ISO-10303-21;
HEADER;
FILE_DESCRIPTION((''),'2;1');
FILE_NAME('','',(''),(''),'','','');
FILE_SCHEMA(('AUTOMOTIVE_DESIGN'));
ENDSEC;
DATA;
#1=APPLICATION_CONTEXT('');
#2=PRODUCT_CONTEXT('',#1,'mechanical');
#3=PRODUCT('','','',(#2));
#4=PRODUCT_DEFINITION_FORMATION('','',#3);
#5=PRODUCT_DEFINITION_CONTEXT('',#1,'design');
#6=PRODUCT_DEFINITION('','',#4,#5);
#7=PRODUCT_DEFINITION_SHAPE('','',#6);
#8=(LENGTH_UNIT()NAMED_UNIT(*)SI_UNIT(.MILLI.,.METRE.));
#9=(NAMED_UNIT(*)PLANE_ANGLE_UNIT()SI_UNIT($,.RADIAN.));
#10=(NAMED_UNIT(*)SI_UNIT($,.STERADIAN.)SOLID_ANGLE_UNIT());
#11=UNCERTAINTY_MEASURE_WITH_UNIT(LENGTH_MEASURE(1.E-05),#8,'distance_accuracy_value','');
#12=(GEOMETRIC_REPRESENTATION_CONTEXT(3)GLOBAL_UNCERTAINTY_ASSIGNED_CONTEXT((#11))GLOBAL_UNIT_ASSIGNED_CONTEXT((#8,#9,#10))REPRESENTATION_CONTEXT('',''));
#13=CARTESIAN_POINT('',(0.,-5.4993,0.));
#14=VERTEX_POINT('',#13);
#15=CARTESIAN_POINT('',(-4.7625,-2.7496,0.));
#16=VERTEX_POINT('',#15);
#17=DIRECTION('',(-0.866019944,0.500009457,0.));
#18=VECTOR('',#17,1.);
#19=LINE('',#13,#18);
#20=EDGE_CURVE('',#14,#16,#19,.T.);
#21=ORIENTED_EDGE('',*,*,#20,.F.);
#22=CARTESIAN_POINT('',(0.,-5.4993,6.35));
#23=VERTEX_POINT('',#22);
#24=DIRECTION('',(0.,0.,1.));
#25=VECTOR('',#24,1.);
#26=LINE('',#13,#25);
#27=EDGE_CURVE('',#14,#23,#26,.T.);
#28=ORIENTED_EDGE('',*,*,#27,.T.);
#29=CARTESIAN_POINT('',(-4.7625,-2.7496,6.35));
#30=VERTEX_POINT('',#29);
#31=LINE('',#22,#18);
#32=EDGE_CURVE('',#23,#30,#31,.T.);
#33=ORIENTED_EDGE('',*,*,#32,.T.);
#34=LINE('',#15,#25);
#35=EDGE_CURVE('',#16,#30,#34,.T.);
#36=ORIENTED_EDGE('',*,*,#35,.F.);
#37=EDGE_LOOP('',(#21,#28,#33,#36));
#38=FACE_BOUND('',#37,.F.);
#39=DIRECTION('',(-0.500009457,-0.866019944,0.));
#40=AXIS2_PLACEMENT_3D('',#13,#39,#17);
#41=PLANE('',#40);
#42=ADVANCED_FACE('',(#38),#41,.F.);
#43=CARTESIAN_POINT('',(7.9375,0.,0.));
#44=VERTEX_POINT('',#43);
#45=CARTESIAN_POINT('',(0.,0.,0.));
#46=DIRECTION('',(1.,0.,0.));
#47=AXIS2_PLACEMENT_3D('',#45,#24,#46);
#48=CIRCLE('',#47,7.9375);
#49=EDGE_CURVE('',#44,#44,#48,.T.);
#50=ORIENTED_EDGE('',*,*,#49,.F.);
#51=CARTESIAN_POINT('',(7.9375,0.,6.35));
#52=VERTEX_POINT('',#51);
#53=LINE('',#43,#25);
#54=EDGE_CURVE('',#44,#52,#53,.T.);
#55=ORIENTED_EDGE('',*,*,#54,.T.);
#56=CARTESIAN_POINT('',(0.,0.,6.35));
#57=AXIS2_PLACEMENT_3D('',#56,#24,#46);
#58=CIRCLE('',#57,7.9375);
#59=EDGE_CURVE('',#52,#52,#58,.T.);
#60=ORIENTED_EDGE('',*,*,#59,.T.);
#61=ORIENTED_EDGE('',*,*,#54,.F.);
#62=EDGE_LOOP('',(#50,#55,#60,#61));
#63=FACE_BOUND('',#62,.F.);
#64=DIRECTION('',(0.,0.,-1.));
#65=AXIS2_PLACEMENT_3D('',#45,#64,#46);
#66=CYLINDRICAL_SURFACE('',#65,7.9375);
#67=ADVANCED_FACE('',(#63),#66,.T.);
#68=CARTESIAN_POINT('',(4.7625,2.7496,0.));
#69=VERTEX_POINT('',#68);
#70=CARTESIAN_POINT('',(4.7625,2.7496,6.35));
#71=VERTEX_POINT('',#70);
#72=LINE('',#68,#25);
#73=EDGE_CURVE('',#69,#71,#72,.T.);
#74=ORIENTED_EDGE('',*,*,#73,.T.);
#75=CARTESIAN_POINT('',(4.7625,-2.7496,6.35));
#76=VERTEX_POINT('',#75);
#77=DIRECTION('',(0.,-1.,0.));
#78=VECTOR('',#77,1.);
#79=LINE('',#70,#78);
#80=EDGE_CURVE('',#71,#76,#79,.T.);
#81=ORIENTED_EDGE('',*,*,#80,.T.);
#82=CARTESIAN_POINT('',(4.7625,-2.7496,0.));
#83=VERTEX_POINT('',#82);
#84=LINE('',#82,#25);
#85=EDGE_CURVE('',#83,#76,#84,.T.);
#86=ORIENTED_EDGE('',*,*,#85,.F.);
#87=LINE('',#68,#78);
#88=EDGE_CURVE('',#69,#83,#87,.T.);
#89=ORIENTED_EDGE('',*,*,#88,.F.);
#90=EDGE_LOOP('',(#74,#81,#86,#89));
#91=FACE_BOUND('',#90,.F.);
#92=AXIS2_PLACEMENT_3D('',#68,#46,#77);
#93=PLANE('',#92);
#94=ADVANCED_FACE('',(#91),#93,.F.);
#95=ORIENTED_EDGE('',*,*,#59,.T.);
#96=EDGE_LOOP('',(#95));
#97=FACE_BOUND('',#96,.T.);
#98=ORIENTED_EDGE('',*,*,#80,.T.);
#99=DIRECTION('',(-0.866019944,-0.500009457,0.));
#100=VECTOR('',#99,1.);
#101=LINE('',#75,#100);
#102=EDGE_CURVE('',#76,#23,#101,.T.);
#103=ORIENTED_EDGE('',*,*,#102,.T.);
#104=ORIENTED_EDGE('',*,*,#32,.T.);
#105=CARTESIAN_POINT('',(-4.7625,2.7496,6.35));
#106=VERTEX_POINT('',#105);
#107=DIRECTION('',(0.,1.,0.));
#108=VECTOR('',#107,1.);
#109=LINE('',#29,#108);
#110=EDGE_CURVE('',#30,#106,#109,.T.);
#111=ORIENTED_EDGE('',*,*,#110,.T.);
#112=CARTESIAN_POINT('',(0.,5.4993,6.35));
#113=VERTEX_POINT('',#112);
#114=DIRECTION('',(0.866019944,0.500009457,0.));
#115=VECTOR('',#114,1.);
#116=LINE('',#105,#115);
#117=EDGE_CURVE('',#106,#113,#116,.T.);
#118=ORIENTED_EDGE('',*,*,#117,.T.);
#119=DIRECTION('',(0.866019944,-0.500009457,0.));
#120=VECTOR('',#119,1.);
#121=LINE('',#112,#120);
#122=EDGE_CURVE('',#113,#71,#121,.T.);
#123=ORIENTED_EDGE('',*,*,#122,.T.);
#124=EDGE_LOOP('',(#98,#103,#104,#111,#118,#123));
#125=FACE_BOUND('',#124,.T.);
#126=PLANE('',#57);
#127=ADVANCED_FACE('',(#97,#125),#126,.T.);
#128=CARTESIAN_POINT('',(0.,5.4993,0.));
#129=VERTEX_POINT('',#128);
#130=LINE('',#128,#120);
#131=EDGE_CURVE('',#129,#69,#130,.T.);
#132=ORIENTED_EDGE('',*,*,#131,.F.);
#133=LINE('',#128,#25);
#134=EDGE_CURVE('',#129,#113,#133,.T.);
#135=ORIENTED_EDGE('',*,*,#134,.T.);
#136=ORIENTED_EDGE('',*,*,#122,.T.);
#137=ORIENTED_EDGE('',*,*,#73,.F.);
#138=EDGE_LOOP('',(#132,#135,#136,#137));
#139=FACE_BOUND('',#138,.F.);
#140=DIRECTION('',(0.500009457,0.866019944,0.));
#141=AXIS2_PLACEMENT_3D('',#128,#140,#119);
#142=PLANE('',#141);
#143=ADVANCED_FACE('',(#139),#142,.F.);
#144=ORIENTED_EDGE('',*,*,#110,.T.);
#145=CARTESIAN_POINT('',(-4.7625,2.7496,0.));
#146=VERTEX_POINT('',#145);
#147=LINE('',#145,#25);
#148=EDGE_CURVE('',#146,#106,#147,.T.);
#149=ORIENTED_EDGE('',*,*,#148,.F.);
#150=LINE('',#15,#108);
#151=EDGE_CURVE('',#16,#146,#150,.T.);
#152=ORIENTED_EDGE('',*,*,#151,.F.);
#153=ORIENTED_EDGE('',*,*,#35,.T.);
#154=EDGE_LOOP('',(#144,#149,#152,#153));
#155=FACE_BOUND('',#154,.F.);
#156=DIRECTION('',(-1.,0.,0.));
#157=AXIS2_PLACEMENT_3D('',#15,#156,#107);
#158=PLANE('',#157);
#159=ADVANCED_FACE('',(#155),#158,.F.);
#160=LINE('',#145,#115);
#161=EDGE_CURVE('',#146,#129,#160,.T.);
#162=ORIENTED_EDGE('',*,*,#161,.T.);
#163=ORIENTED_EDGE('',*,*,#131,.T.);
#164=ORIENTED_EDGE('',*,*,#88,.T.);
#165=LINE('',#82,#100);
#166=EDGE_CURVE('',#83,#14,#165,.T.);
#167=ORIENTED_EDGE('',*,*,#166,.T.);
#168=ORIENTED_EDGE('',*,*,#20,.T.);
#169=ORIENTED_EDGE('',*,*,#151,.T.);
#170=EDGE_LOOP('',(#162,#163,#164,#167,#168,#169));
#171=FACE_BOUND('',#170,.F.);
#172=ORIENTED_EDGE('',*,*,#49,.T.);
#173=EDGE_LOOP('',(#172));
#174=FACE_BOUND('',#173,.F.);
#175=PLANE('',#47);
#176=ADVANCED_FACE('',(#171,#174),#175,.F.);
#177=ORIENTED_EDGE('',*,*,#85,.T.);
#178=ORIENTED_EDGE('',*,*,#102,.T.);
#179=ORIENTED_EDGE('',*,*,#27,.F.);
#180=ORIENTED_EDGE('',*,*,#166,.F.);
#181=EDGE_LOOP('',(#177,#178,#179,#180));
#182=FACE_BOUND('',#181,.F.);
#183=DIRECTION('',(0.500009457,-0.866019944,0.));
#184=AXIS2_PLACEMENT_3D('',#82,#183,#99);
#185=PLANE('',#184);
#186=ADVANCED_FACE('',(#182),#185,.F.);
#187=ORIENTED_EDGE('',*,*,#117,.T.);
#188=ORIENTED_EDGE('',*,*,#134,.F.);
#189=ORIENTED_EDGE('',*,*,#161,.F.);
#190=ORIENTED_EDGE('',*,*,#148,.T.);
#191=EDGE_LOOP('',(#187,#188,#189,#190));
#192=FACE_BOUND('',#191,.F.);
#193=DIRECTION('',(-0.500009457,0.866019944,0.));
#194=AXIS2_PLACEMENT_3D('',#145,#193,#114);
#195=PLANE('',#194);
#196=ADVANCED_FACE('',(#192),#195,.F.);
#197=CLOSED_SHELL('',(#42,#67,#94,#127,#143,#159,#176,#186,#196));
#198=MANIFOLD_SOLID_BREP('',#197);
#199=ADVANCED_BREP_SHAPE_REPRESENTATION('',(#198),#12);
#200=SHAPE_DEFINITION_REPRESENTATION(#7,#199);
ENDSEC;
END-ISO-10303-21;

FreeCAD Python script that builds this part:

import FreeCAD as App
import Part
import Sketcher
Q = App.Units.Quantity

doc = App.newDocument("Part")
body = doc.addObject("PartDesign::Body", "Body")

sketch1 = body.newObject("Sketcher::SketchObject", "Sketch")
sketch1.AttachmentSupport = (doc.getObject("XY_Plane"), [""])
sketch1.MapMode = "FlatFace"
sketch1.addGeometry([
    Part.Circle(App.Vector(0, 0, 0), App.Vector(0, 0, 1), 8),
    Part.LineSegment(App.Vector(-5, 3, 0), App.Vector(0, 5, 0)),
    Part.LineSegment(App.Vector(0, 5, 0), App.Vector(5, 3, 0)),
    Part.LineSegment(App.Vector(5, 3, 0), App.Vector(5, -3, 0)),
    Part.LineSegment(App.Vector(5, -3, 0), App.Vector(0, -5, 0)),
    Part.LineSegment(App.Vector(0, -5, 0), App.Vector(-5, -3, 0)),
    Part.LineSegment(App.Vector(-5, -3, 0), App.Vector(-5, 3, 0)),
], False)
sketch1.addConstraint([
    Sketcher.Constraint("Coincident", 1, 2, 2, 1),
    Sketcher.Constraint("Coincident", 2, 2, 3, 1),
    Sketcher.Constraint("Coincident", 3, 2, 4, 1),
    Sketcher.Constraint("Coincident", 4, 2, 5, 1),
    Sketcher.Constraint("Coincident", 5, 2, 6, 1),
    Sketcher.Constraint("Coincident", 6, 2, 1, 1),
    Sketcher.Constraint("Vertical", 3),
    Sketcher.Constraint("Vertical", 6),
    Sketcher.Constraint("Coincident", 0, 3, -1, 1),
    Sketcher.Constraint("Symmetric", 1, 2, 4, 2, -1, 1),
    Sketcher.Constraint("Symmetric", 2, 2, 5, 2, -1, 1),
    Sketcher.Constraint("PointOnObject", 1, 2, -2),
    Sketcher.Constraint("Parallel", 1, 4),
    Sketcher.Constraint("Horizontal", 3, 2, 5, 2),
    Sketcher.Constraint("Diameter", 0, Q("0.625 in")),
    Sketcher.Constraint("Angle", 1, Q("30.0006 deg")),
    Sketcher.Constraint("DistanceX", 5, 2, 3, 2, Q("0.375 in")),
    Sketcher.Constraint("DistanceY", 3, 2, 3, 1, Q("0.2165 in")),
])
pad1 = body.newObject("PartDesign::Pad", "Pad")
pad1.Profile = sketch1
pad1.Length = Q("0.25 in")

doc.recompute()
